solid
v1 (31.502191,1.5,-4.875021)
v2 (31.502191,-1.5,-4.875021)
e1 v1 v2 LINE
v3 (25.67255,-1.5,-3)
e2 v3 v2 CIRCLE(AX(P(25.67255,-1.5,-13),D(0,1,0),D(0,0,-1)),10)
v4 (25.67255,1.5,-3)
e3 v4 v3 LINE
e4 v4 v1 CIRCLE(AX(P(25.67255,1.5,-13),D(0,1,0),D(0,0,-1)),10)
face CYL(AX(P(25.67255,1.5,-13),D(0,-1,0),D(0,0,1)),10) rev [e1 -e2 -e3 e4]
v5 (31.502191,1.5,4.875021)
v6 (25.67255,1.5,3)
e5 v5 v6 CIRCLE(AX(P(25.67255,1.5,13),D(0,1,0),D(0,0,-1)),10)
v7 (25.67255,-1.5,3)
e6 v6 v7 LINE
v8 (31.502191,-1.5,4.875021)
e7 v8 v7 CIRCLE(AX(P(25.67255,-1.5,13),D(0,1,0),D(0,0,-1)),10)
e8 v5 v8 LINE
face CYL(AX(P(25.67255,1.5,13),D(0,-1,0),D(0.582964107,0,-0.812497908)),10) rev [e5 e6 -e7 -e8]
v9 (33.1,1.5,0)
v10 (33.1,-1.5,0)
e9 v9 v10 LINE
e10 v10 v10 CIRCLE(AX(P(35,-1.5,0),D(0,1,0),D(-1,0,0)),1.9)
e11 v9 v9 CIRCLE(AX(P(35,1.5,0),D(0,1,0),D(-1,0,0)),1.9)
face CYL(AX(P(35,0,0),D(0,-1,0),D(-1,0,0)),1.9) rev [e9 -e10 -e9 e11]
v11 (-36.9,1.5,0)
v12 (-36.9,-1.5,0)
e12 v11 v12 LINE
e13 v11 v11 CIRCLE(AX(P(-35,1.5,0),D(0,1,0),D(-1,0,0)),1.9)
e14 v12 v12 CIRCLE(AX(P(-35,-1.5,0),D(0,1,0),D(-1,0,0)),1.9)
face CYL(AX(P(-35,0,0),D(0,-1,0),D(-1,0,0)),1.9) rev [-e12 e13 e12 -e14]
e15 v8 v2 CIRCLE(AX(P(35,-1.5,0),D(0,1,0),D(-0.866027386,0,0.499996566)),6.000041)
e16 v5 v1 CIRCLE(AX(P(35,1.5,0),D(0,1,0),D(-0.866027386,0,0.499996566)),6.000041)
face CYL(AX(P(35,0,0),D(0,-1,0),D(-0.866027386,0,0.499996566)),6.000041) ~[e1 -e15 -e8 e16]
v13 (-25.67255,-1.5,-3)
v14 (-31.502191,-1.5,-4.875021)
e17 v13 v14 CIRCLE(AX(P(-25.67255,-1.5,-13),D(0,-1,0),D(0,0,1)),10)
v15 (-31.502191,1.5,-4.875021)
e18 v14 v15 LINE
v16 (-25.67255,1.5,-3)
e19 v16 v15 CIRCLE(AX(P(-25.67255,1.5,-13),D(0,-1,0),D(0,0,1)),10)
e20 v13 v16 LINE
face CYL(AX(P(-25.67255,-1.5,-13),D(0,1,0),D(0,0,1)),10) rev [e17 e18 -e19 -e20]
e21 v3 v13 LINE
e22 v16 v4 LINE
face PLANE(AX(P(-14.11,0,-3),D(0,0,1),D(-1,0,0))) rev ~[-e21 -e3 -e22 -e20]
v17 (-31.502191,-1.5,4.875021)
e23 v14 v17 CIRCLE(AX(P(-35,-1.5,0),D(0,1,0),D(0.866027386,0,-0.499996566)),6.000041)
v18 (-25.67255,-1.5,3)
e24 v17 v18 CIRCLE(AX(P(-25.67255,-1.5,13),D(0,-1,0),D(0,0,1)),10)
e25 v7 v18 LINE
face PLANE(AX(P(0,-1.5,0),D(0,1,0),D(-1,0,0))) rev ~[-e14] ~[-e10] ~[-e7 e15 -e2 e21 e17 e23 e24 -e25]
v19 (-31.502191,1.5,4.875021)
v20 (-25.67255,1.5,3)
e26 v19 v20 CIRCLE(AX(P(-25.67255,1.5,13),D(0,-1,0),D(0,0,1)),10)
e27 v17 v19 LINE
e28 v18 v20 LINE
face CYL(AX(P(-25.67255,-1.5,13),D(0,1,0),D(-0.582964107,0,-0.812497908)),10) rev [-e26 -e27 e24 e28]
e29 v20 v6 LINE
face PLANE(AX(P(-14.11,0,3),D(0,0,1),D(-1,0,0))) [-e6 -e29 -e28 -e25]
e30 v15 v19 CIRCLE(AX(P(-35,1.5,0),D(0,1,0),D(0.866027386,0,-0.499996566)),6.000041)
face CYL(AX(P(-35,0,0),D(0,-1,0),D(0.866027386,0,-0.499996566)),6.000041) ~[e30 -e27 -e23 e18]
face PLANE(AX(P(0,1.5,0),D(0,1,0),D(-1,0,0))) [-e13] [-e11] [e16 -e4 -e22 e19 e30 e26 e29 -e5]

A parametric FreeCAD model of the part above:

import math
import FreeCAD as App
import Part
import Sketcher
from FreeCAD import Vector
Q = App.Units.Quantity


def edges_at(feature, points):
    """Names of the edges that pass closest to the given points."""
    edges = feature.Shape.Edges
    near = lambda p: min(range(len(edges)), key=lambda i: edges[i].distToShape(Part.Vertex(*p))[0])
    return sorted({f"Edge{near(p) + 1}" for p in points})

doc = App.newDocument("Part")
body = doc.addObject("PartDesign::Body", "Body")

# Sketch on XZ plane
sketch1 = body.newObject("Sketcher::SketchObject", "Sketch")
sketch1.AttachmentSupport = (doc.getObject("XZ_Plane"), [""])
sketch1.MapMode = "FlatFace"
sketch1.addGeometry([
    Part.ArcOfCircle(Part.Circle(Vector(-35, 0, 0), Vector(0, 0, 1), 6), math.radians(30), math.radians(330)),  # 0
    Part.LineSegment(Vector(-29.8, 3, 0), Vector(29.8, 3, 0)),  # 1
    Part.ArcOfCircle(Part.Circle(Vector(35, 0, 0), Vector(0, 0, 1), 6), math.radians(-150), math.radians(150)),  # 2
    Part.LineSegment(Vector(29.8, -3, 0), Vector(-29.8, -3, 0)),  # 3
    Part.Circle(Vector(-35, 0, 0), Vector(0, 0, 1), 1.9),  # 4
    Part.Circle(Vector(35, 0, 0), Vector(0, 0, 1), 1.9),  # 5
], False)
sketch1.addConstraint([
    Sketcher.Constraint("Coincident", 0, 1, 1, 1),
    Sketcher.Constraint("Coincident", 1, 2, 2, 2),
    Sketcher.Constraint("Coincident", 2, 1, 3, 1),
    Sketcher.Constraint("Coincident", 3, 2, 0, 2),
    Sketcher.Constraint("Horizontal", 1),
    Sketcher.Constraint("Horizontal", 3),
    Sketcher.Constraint("Coincident", 4, 3, 0, 3),
    Sketcher.Constraint("Coincident", 5, 3, 2, 3),
    Sketcher.Constraint("Equal", 0, 2),
    Sketcher.Constraint("Equal", 4, 5),
    Sketcher.Constraint("Symmetric", 0, 3, 2, 3, -1, 1),
    Sketcher.Constraint("Symmetric", 1, 2, 2, 1, -1),
    Sketcher.Constraint("Radius", 0, Q("6 mm")),
    Sketcher.Constraint("Diameter", 4, Q("3.8 mm")),
    Sketcher.Constraint("DistanceX", 0, 3, -1, 1, Q("35 mm")),
    Sketcher.Constraint("DistanceY", 2, 1, 1, 2, Q("6 mm")),
])
pad1 = body.newObject("PartDesign::Pad", "Pad")
pad1.Profile = sketch1
pad1.Length = 3
pad1.Midplane = True
doc.recompute()

fillet = body.newObject("PartDesign::Fillet", "Fillet")
fillet.Base = (pad1, edges_at(pad1, [
    (-29.804, 0, 3),
    (-29.804, 0, -3),
    (29.804, 0, -3),
    (29.804, 0, 3),
]))
fillet.Radius = 10

doc.recompute()
